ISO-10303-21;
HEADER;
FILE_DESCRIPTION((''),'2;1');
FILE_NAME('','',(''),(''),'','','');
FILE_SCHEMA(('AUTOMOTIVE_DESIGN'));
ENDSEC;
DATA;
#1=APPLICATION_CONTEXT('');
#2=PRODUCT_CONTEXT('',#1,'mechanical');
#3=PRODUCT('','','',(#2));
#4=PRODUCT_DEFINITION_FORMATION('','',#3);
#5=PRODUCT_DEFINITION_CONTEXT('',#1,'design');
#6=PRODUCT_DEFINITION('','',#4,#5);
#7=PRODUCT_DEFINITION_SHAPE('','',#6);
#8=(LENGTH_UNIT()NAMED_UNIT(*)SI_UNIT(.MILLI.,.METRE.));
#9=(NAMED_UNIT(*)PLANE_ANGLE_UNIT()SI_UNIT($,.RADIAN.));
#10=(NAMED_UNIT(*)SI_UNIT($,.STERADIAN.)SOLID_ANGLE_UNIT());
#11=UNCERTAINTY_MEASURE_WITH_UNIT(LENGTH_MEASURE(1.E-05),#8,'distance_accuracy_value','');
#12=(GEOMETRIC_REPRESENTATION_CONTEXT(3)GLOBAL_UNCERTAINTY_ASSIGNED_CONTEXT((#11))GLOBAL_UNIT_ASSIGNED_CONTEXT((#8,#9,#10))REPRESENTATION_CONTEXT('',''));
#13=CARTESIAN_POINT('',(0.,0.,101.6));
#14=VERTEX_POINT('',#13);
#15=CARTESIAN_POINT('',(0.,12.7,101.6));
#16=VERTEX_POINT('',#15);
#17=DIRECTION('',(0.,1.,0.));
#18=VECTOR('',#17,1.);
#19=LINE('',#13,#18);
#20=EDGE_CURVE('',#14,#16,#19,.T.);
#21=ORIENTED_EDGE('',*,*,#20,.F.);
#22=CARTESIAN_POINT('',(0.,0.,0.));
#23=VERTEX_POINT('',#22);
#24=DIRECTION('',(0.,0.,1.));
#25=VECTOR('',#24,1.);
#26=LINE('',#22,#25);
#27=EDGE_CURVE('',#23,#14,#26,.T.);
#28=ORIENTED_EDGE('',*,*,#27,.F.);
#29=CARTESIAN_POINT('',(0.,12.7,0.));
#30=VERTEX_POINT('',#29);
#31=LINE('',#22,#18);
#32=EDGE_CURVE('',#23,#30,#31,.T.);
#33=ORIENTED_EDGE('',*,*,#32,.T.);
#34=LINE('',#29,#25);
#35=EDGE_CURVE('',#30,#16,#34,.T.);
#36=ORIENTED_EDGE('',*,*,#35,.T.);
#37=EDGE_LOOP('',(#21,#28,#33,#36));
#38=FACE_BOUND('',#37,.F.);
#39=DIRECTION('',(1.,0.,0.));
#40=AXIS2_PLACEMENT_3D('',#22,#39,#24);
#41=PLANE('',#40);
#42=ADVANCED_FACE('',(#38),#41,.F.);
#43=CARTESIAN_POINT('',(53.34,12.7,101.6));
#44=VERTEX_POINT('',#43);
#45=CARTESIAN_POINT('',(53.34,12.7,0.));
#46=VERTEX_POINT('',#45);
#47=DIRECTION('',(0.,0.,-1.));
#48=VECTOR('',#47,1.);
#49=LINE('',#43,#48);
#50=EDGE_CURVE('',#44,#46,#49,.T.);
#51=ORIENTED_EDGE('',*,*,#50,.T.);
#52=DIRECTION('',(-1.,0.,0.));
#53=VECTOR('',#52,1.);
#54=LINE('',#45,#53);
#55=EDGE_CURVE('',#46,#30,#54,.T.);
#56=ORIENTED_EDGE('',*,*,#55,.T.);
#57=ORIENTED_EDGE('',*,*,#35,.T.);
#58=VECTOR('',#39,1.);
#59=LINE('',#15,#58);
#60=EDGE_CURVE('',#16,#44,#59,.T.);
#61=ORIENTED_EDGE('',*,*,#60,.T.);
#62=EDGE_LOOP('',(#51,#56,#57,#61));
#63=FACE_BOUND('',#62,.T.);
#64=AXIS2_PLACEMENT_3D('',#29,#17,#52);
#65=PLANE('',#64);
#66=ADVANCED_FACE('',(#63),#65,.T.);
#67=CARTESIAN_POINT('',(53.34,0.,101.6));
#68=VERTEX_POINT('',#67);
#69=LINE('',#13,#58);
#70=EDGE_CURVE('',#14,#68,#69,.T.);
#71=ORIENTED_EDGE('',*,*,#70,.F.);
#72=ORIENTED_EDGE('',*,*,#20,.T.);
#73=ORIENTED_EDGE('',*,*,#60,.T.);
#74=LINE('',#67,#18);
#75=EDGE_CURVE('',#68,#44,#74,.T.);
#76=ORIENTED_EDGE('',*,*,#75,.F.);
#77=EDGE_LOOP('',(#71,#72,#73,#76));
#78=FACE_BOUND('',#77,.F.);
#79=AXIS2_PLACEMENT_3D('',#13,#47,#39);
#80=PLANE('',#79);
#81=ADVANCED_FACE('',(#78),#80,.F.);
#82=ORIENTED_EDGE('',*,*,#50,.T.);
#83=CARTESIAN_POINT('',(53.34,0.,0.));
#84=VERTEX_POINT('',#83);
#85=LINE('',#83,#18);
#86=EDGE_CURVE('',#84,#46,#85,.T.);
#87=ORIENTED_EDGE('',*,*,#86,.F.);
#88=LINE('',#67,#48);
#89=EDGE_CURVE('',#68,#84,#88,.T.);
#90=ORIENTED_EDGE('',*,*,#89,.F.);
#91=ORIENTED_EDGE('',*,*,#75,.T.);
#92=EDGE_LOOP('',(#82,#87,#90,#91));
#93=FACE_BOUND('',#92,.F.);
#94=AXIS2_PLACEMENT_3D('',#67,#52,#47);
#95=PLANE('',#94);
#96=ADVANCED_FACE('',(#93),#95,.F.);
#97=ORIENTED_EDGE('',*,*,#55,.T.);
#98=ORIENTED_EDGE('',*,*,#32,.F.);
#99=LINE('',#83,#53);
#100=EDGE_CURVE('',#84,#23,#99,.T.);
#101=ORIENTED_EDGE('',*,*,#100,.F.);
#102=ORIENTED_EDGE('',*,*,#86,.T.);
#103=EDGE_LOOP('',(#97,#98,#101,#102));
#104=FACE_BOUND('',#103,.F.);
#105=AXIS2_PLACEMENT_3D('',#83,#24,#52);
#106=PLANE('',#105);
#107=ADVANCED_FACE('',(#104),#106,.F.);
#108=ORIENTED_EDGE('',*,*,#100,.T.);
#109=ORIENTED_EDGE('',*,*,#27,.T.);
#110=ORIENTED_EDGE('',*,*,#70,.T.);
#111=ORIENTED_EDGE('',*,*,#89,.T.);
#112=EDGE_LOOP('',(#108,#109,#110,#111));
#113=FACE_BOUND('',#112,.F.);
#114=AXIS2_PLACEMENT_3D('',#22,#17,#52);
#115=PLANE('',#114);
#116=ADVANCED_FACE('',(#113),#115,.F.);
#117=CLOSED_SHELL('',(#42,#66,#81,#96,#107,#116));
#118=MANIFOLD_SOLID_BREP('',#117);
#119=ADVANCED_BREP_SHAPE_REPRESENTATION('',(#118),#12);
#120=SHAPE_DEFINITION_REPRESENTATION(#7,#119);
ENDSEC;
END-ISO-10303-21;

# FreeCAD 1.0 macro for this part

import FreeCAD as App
import Part
import Sketcher
Q = App.Units.Quantity

doc = App.newDocument("Part")
body = doc.addObject("PartDesign::Body", "Body")

# Sketch on XZ plane
sketch1 = body.newObject("Sketcher::SketchObject", "Sketch")
sketch1.AttachmentSupport = (doc.getObject("XZ_Plane"), [""])
sketch1.MapMode = "FlatFace"
sketch1.addGeometry([
    Part.LineSegment(App.Vector(53, 0, 0), App.Vector(0, 0, 0)),
    Part.LineSegment(App.Vector(0, 0, 0), App.Vector(0, 102, 0)),
    Part.LineSegment(App.Vector(0, 102, 0), App.Vector(53, 102, 0)),
    Part.LineSegment(App.Vector(53, 102, 0), App.Vector(53, 0, 0)),
], False)
sketch1.addConstraint([
    Sketcher.Constraint("Coincident", 0, 2, 1, 1),
    Sketcher.Constraint("Coincident", 1, 2, 2, 1),
    Sketcher.Constraint("Coincident", 2, 2, 3, 1),
    Sketcher.Constraint("Coincident", 3, 2, 0, 1),
    Sketcher.Constraint("Horizontal", 0),
    Sketcher.Constraint("Vertical", 1),
    Sketcher.Constraint("Horizontal", 2),
    Sketcher.Constraint("Vertical", 3),
    Sketcher.Constraint("Coincident", 0, 2, -1, 1),
    Sketcher.Constraint("DistanceY", 1, 1, 1, 2, Q("4 in")),
    Sketcher.Constraint("DistanceX", 0, 2, 0, 1, Q("2.1 in")),
])
pad1 = body.newObject("PartDesign::Pad", "Pad")
pad1.Profile = sketch1
pad1.Length = Q("0.5 in")
pad1.Reversed = True

doc.recompute()
